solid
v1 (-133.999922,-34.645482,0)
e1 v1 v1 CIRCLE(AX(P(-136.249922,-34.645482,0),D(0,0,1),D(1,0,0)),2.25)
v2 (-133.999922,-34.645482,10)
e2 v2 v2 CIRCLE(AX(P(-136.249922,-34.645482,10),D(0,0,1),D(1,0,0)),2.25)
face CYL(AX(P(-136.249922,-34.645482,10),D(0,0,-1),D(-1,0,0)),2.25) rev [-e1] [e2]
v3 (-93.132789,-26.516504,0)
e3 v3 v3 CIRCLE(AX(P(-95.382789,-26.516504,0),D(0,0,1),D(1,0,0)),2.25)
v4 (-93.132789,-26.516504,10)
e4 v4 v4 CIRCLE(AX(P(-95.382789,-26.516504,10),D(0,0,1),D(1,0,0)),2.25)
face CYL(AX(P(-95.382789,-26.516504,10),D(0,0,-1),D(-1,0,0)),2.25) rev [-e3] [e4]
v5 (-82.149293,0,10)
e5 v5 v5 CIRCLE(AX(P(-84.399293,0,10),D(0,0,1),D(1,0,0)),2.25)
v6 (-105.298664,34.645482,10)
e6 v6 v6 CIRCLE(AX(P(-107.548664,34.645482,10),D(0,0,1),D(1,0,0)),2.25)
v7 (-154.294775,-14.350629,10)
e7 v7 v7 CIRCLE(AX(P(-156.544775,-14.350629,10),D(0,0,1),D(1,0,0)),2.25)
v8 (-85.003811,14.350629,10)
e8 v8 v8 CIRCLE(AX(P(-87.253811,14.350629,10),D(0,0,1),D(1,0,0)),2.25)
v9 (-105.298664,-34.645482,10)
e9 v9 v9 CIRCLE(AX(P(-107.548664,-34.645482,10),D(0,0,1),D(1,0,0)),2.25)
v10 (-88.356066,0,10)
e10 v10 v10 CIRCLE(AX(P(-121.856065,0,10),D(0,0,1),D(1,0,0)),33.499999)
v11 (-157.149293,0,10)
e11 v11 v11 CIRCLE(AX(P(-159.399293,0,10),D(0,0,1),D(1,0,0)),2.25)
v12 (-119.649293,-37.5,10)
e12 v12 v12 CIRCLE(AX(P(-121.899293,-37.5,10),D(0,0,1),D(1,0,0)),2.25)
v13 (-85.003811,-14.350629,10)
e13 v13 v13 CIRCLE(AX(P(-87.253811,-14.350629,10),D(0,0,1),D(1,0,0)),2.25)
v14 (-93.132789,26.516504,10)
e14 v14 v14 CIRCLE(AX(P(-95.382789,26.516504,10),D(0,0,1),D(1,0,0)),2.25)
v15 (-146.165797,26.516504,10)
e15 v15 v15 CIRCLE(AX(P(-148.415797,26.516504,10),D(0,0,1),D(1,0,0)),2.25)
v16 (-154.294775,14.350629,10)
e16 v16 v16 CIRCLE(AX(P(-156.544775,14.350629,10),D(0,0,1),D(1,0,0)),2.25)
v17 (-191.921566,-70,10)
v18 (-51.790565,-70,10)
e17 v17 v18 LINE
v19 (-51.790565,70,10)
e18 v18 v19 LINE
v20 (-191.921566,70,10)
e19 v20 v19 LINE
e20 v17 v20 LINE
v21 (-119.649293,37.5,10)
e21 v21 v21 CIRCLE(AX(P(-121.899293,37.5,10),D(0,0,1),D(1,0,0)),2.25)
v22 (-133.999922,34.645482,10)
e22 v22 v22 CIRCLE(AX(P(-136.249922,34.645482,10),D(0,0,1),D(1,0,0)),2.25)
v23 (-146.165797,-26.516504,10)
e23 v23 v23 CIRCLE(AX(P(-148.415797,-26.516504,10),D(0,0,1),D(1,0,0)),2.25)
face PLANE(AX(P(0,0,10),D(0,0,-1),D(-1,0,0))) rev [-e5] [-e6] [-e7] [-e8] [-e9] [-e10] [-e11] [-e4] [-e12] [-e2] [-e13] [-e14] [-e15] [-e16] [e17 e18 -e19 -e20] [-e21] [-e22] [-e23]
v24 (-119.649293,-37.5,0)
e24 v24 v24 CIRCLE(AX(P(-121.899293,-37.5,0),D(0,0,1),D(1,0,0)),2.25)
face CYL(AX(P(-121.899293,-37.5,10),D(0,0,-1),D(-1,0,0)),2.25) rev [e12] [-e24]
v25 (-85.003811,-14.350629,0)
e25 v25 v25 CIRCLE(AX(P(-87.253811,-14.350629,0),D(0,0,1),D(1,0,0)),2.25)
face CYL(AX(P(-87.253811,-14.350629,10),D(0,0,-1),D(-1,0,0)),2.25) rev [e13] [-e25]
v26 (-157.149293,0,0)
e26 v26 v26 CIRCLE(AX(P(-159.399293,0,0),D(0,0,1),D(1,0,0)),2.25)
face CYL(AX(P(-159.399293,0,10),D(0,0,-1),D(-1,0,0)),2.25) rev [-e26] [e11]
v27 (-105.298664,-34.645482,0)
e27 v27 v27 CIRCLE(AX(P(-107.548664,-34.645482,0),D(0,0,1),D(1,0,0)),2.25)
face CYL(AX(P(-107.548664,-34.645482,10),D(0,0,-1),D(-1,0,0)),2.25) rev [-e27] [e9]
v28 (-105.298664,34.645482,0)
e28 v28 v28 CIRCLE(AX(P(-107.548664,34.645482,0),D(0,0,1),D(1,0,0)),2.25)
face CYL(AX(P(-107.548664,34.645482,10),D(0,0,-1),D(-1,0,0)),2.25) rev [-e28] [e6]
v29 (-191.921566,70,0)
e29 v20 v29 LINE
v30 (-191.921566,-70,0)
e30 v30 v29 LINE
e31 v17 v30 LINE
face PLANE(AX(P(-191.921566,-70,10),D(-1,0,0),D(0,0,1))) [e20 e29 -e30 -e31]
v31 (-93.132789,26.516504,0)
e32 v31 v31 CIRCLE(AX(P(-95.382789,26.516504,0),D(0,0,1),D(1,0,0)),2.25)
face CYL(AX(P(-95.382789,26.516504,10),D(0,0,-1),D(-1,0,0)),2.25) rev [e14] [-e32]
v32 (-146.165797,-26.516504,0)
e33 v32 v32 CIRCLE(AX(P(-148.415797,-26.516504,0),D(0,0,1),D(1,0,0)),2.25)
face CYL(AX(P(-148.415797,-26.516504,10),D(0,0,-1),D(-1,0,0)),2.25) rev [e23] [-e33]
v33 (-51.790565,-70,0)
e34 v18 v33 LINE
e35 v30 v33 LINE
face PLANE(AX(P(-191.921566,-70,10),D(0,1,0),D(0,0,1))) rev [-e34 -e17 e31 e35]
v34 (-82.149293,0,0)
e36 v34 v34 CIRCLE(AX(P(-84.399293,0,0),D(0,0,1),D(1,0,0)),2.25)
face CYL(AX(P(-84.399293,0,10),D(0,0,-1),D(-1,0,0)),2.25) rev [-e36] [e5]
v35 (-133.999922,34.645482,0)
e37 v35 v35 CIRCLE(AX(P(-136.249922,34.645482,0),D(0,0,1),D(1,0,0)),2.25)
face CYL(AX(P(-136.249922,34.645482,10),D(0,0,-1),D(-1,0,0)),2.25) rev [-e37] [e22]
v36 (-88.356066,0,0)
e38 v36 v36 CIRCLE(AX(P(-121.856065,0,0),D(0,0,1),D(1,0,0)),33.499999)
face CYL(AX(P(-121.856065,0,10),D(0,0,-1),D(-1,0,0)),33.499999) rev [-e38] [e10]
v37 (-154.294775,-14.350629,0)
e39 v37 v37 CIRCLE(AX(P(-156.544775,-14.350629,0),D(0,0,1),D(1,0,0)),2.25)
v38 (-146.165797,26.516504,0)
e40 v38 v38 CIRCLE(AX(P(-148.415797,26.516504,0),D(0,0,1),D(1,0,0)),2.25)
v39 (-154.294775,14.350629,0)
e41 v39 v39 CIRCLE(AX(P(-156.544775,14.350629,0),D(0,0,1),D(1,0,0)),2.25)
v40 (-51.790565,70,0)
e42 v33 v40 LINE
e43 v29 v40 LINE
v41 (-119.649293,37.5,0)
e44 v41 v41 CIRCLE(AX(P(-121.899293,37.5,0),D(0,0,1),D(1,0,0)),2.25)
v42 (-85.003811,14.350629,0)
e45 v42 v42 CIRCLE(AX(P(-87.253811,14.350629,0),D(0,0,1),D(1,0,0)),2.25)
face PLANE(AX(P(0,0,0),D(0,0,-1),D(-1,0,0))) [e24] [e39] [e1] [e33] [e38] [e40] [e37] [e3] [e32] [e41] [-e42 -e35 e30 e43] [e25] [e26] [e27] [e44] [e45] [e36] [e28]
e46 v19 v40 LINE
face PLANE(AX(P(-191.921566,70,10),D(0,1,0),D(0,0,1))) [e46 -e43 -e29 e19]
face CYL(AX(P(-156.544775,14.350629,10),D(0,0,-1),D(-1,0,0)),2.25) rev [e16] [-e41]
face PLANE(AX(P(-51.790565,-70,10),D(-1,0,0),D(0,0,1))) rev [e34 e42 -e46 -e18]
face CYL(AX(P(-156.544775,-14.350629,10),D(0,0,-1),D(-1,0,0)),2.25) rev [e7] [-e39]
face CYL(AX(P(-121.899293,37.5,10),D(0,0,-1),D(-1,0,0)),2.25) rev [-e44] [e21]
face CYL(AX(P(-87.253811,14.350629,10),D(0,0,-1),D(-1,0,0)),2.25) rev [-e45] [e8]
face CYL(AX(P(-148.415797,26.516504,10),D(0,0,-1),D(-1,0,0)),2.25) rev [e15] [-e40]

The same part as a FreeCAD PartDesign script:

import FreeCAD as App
import Part
import Sketcher

V = App.Vector
Q = App.Units.Quantity


def add_polygon(sketch, points):
    """Adds a closed chain of lines whose ends are joined by coincident constraints."""
    first, n = sketch.GeometryCount, len(points)
    for a, b in zip(points, points[1:] + points[:1]):
        sketch.addGeometry(Part.LineSegment(App.Vector(*a, 0), App.Vector(*b, 0)), False)
    for i in range(n):
        sketch.addConstraint(Sketcher.Constraint("Coincident", first + i, 2, first + (i + 1) % n, 1))

doc = App.newDocument("Part")
body = doc.addObject("PartDesign::Body", "Body")

sketch1 = body.newObject("Sketcher::SketchObject", "Sketch")
sketch1.AttachmentSupport = (doc.getObject("XY_Plane"), [""])
sketch1.MapMode = "FlatFace"
add_polygon(sketch1, [(-192, 70), (-192, -70), (-52, -70), (-52, 70)])
sketch1.addConstraint([
    Sketcher.Constraint("Vertical", 0),
    Sketcher.Constraint("Horizontal", 1),
    Sketcher.Constraint("Vertical", 2),
    Sketcher.Constraint("Horizontal", 3),
    Sketcher.Constraint("DistanceY", 0, 2, 0, 1, Q("140 mm")),
    Sketcher.Constraint("DistanceY", 0, 2, -1, 1, Q("70 mm")),
    Sketcher.Constraint("DistanceX", 1, 1, 1, 2, Q("140.131 mm")),
    Sketcher.Constraint("DistanceX", 0, 2, -1, 1, Q("191.921566 mm")),
])
pad1 = body.newObject("PartDesign::Pad", "Pad")
pad1.Profile = sketch1
pad1.Length = 10

sketch2 = body.newObject("Sketcher::SketchObject", "Sketch001")
sketch2.AttachmentSupport = (doc.getObject("XY_Plane"), [""])
sketch2.MapMode = "FlatFace"
add_polygon(sketch2, [(-213, 91), (-213, -91), (-31, -91), (-31, 91)])
add_polygon(sketch2, [(-52, -70), (-192, -70), (-192, 70), (-52, 70)])
sketch2.addGeometry(Part.Circle(V(-122, 0, 0), V(0, 0, 1), 33), False)
sketch2.addConstraint([
    Sketcher.Constraint("Vertical", 0),
    Sketcher.Constraint("Horizontal", 1),
    Sketcher.Constraint("Vertical", 2),
    Sketcher.Constraint("Horizontal", 3),
    Sketcher.Constraint("Horizontal", 4),
    Sketcher.Constraint("Vertical", 5),
    Sketcher.Constraint("Horizontal", 6),
    Sketcher.Constraint("Vertical", 7),
    Sketcher.Constraint("PointOnObject", 8, 3, -1),
    Sketcher.Constraint("Diameter", 8, Q("66.999999 mm")),
    Sketcher.Constraint("DistanceY", 5, 1, 5, 2, Q("140 mm")),
    Sketcher.Constraint("DistanceY", 4, 2, -1, 1, Q("70 mm")),
    Sketcher.Constraint("DistanceX", 1, 1, 1, 2, Q("181.797 mm")),
    Sketcher.Constraint("DistanceX", 4, 2, 4, 1, Q("140.131 mm")),
    Sketcher.Constraint("DistanceY", 0, 2, 0, 1, Q("181.666 mm")),
    Sketcher.Constraint("DistanceX", 0, 2, -1, 1, Q("212.755 mm")),
    Sketcher.Constraint("DistanceY", 0, 2, -1, 1, Q("90.833 mm")),
    Sketcher.Constraint("DistanceX", 4, 2, 8, 3, Q("70.0655 mm")),
    Sketcher.Constraint("DistanceX", 8, 3, -1, 1, Q("121.856065 mm")),
])
pocket1 = body.newObject("PartDesign::Pocket", "Pocket")
pocket1.Profile = sketch2
pocket1.Length = 10
pocket1.Reversed = True

sketch3 = body.newObject("Sketcher::SketchObject", "Sketch002")
sketch3.AttachmentSupport = (doc.getObject("XY_Plane"), [""])
sketch3.MapMode = "FlatFace"
sketch3.addGeometry([
    Part.Circle(V(-107.5, 34.6, 0), V(0, 0, 1), 2.2),
    Part.Circle(V(-95.4, 26.5, 0), V(0, 0, 1), 2.2),
    Part.Circle(V(-87.3, 14.4, 0), V(0, 0, 1), 2.2),
    Part.Circle(V(-84.4, 0, 0), V(0, 0, 1), 2.2),
    Part.Circle(V(-87.3, -14.4, 0), V(0, 0, 1), 2.2),
    Part.Circle(V(-95.4, -26.5, 0), V(0, 0, 1), 2.2),
    Part.Circle(V(-107.5, -34.6, 0), V(0, 0, 1), 2.2),
    Part.Circle(V(-121.9, -37.5, 0), V(0, 0, 1), 2.2),
    Part.Circle(V(-136.2, -34.6, 0), V(0, 0, 1), 2.2),
    Part.Circle(V(-148.4, -26.5, 0), V(0, 0, 1), 2.2),
    Part.Circle(V(-156.5, -14.4, 0), V(0, 0, 1), 2.2),
    Part.Circle(V(-159.4, 0, 0), V(0, 0, 1), 2.2),
    Part.Circle(V(-156.5, 14.4, 0), V(0, 0, 1), 2.2),
    Part.Circle(V(-148.4, 26.5, 0), V(0, 0, 1), 2.2),
    Part.Circle(V(-136.2, 34.6, 0), V(0, 0, 1), 2.2),
    Part.Circle(V(-121.9, 37.5, 0), V(0, 0, 1), 2.2),
], False)
sketch3.addConstraint([
    Sketcher.Constraint("Equal", 0, 1),
    Sketcher.Constraint("Equal", 1, 2),
    Sketcher.Constraint("Equal", 2, 3),
    Sketcher.Constraint("Equal", 3, 4),
    Sketcher.Constraint("Equal", 4, 5),
    Sketcher.Constraint("Equal", 5, 6),
    Sketcher.Constraint("Equal", 6, 7),
    Sketcher.Constraint("Equal", 7, 8),
    Sketcher.Constraint("Equal", 8, 9),
    Sketcher.Constraint("Equal", 9, 10),
    Sketcher.Constraint("Equal", 10, 11),
    Sketcher.Constraint("Equal", 11, 12),
    Sketcher.Constraint("Equal", 12, 13),
    Sketcher.Constraint("Equal", 13, 14),
    Sketcher.Constraint("Equal", 14, 15),
    Sketcher.Constraint("Symmetric", 2, 3, 4, 3, -1),
    Sketcher.Constraint("Symmetric", 1, 3, 5, 3, -1),
    Sketcher.Constraint("Symmetric", 0, 3, 6, 3, -1),
    Sketcher.Constraint("Symmetric", 10, 3, 12, 3, -1),
    Sketcher.Constraint("Symmetric", 9, 3, 13, 3, -1),
    Sketcher.Constraint("Symmetric", 8, 3, 14, 3, -1),
    Sketcher.Constraint("Symmetric", 7, 3, 15, 3, -1),
    Sketcher.Constraint("PointOnObject", 3, 3, -1),
    Sketcher.Constraint("PointOnObject", 11, 3, -1),
    Sketcher.Constraint("Horizontal", 6, 3, 8, 3),
    Sketcher.Constraint("Horizontal", 5, 3, 9, 3),
    Sketcher.Constraint("Horizontal", 4, 3, 10, 3),
    Sketcher.Constraint("Diameter", 0, Q("4.5 mm")),
    Sketcher.Constraint("DistanceY", 7, 3, -1, 1, Q("37.5 mm")),
    Sketcher.Constraint("DistanceX", 7, 3, 3, 3, Q("37.5 mm")),
    Sketcher.Constraint("DistanceX", 11, 3, 7, 3, Q("37.5 mm")),
    Sketcher.Constraint("DistanceX", 1, 3, -1, 1, Q("95.382789 mm")),
    Sketcher.Constraint("DistanceX", 2, 3, -1, 1, Q("87.253811 mm")),
    Sketcher.Constraint("DistanceY", -1, 1, 2, 3, Q("14.350629 mm")),
    Sketcher.Constraint("DistanceX", 8, 3, -1, 1, Q("136.249922 mm")),
    Sketcher.Constraint("DistanceY", 1, 3, 0, 3, Q("8.128978 mm")),
    Sketcher.Constraint("DistanceX", 0, 3, 3, 3, Q("23.149371 mm")),
    Sketcher.Constraint("DistanceY", 4, 3, 0, 3, Q("48.996111 mm")),
    Sketcher.Constraint("DistanceX", 8, 3, 7, 3, Q("14.350629 mm")),
    Sketcher.Constraint("DistanceX", 9, 3, 5, 3, Q("53.033009 mm")),
    Sketcher.Constraint("DistanceX", 10, 3, 9, 3, Q("8.128978 mm")),
])
pocket2 = body.newObject("PartDesign::Pocket", "Pocket001")
pocket2.Profile = sketch3
pocket2.Length = 10
pocket2.Reversed = True

doc.recompute()
